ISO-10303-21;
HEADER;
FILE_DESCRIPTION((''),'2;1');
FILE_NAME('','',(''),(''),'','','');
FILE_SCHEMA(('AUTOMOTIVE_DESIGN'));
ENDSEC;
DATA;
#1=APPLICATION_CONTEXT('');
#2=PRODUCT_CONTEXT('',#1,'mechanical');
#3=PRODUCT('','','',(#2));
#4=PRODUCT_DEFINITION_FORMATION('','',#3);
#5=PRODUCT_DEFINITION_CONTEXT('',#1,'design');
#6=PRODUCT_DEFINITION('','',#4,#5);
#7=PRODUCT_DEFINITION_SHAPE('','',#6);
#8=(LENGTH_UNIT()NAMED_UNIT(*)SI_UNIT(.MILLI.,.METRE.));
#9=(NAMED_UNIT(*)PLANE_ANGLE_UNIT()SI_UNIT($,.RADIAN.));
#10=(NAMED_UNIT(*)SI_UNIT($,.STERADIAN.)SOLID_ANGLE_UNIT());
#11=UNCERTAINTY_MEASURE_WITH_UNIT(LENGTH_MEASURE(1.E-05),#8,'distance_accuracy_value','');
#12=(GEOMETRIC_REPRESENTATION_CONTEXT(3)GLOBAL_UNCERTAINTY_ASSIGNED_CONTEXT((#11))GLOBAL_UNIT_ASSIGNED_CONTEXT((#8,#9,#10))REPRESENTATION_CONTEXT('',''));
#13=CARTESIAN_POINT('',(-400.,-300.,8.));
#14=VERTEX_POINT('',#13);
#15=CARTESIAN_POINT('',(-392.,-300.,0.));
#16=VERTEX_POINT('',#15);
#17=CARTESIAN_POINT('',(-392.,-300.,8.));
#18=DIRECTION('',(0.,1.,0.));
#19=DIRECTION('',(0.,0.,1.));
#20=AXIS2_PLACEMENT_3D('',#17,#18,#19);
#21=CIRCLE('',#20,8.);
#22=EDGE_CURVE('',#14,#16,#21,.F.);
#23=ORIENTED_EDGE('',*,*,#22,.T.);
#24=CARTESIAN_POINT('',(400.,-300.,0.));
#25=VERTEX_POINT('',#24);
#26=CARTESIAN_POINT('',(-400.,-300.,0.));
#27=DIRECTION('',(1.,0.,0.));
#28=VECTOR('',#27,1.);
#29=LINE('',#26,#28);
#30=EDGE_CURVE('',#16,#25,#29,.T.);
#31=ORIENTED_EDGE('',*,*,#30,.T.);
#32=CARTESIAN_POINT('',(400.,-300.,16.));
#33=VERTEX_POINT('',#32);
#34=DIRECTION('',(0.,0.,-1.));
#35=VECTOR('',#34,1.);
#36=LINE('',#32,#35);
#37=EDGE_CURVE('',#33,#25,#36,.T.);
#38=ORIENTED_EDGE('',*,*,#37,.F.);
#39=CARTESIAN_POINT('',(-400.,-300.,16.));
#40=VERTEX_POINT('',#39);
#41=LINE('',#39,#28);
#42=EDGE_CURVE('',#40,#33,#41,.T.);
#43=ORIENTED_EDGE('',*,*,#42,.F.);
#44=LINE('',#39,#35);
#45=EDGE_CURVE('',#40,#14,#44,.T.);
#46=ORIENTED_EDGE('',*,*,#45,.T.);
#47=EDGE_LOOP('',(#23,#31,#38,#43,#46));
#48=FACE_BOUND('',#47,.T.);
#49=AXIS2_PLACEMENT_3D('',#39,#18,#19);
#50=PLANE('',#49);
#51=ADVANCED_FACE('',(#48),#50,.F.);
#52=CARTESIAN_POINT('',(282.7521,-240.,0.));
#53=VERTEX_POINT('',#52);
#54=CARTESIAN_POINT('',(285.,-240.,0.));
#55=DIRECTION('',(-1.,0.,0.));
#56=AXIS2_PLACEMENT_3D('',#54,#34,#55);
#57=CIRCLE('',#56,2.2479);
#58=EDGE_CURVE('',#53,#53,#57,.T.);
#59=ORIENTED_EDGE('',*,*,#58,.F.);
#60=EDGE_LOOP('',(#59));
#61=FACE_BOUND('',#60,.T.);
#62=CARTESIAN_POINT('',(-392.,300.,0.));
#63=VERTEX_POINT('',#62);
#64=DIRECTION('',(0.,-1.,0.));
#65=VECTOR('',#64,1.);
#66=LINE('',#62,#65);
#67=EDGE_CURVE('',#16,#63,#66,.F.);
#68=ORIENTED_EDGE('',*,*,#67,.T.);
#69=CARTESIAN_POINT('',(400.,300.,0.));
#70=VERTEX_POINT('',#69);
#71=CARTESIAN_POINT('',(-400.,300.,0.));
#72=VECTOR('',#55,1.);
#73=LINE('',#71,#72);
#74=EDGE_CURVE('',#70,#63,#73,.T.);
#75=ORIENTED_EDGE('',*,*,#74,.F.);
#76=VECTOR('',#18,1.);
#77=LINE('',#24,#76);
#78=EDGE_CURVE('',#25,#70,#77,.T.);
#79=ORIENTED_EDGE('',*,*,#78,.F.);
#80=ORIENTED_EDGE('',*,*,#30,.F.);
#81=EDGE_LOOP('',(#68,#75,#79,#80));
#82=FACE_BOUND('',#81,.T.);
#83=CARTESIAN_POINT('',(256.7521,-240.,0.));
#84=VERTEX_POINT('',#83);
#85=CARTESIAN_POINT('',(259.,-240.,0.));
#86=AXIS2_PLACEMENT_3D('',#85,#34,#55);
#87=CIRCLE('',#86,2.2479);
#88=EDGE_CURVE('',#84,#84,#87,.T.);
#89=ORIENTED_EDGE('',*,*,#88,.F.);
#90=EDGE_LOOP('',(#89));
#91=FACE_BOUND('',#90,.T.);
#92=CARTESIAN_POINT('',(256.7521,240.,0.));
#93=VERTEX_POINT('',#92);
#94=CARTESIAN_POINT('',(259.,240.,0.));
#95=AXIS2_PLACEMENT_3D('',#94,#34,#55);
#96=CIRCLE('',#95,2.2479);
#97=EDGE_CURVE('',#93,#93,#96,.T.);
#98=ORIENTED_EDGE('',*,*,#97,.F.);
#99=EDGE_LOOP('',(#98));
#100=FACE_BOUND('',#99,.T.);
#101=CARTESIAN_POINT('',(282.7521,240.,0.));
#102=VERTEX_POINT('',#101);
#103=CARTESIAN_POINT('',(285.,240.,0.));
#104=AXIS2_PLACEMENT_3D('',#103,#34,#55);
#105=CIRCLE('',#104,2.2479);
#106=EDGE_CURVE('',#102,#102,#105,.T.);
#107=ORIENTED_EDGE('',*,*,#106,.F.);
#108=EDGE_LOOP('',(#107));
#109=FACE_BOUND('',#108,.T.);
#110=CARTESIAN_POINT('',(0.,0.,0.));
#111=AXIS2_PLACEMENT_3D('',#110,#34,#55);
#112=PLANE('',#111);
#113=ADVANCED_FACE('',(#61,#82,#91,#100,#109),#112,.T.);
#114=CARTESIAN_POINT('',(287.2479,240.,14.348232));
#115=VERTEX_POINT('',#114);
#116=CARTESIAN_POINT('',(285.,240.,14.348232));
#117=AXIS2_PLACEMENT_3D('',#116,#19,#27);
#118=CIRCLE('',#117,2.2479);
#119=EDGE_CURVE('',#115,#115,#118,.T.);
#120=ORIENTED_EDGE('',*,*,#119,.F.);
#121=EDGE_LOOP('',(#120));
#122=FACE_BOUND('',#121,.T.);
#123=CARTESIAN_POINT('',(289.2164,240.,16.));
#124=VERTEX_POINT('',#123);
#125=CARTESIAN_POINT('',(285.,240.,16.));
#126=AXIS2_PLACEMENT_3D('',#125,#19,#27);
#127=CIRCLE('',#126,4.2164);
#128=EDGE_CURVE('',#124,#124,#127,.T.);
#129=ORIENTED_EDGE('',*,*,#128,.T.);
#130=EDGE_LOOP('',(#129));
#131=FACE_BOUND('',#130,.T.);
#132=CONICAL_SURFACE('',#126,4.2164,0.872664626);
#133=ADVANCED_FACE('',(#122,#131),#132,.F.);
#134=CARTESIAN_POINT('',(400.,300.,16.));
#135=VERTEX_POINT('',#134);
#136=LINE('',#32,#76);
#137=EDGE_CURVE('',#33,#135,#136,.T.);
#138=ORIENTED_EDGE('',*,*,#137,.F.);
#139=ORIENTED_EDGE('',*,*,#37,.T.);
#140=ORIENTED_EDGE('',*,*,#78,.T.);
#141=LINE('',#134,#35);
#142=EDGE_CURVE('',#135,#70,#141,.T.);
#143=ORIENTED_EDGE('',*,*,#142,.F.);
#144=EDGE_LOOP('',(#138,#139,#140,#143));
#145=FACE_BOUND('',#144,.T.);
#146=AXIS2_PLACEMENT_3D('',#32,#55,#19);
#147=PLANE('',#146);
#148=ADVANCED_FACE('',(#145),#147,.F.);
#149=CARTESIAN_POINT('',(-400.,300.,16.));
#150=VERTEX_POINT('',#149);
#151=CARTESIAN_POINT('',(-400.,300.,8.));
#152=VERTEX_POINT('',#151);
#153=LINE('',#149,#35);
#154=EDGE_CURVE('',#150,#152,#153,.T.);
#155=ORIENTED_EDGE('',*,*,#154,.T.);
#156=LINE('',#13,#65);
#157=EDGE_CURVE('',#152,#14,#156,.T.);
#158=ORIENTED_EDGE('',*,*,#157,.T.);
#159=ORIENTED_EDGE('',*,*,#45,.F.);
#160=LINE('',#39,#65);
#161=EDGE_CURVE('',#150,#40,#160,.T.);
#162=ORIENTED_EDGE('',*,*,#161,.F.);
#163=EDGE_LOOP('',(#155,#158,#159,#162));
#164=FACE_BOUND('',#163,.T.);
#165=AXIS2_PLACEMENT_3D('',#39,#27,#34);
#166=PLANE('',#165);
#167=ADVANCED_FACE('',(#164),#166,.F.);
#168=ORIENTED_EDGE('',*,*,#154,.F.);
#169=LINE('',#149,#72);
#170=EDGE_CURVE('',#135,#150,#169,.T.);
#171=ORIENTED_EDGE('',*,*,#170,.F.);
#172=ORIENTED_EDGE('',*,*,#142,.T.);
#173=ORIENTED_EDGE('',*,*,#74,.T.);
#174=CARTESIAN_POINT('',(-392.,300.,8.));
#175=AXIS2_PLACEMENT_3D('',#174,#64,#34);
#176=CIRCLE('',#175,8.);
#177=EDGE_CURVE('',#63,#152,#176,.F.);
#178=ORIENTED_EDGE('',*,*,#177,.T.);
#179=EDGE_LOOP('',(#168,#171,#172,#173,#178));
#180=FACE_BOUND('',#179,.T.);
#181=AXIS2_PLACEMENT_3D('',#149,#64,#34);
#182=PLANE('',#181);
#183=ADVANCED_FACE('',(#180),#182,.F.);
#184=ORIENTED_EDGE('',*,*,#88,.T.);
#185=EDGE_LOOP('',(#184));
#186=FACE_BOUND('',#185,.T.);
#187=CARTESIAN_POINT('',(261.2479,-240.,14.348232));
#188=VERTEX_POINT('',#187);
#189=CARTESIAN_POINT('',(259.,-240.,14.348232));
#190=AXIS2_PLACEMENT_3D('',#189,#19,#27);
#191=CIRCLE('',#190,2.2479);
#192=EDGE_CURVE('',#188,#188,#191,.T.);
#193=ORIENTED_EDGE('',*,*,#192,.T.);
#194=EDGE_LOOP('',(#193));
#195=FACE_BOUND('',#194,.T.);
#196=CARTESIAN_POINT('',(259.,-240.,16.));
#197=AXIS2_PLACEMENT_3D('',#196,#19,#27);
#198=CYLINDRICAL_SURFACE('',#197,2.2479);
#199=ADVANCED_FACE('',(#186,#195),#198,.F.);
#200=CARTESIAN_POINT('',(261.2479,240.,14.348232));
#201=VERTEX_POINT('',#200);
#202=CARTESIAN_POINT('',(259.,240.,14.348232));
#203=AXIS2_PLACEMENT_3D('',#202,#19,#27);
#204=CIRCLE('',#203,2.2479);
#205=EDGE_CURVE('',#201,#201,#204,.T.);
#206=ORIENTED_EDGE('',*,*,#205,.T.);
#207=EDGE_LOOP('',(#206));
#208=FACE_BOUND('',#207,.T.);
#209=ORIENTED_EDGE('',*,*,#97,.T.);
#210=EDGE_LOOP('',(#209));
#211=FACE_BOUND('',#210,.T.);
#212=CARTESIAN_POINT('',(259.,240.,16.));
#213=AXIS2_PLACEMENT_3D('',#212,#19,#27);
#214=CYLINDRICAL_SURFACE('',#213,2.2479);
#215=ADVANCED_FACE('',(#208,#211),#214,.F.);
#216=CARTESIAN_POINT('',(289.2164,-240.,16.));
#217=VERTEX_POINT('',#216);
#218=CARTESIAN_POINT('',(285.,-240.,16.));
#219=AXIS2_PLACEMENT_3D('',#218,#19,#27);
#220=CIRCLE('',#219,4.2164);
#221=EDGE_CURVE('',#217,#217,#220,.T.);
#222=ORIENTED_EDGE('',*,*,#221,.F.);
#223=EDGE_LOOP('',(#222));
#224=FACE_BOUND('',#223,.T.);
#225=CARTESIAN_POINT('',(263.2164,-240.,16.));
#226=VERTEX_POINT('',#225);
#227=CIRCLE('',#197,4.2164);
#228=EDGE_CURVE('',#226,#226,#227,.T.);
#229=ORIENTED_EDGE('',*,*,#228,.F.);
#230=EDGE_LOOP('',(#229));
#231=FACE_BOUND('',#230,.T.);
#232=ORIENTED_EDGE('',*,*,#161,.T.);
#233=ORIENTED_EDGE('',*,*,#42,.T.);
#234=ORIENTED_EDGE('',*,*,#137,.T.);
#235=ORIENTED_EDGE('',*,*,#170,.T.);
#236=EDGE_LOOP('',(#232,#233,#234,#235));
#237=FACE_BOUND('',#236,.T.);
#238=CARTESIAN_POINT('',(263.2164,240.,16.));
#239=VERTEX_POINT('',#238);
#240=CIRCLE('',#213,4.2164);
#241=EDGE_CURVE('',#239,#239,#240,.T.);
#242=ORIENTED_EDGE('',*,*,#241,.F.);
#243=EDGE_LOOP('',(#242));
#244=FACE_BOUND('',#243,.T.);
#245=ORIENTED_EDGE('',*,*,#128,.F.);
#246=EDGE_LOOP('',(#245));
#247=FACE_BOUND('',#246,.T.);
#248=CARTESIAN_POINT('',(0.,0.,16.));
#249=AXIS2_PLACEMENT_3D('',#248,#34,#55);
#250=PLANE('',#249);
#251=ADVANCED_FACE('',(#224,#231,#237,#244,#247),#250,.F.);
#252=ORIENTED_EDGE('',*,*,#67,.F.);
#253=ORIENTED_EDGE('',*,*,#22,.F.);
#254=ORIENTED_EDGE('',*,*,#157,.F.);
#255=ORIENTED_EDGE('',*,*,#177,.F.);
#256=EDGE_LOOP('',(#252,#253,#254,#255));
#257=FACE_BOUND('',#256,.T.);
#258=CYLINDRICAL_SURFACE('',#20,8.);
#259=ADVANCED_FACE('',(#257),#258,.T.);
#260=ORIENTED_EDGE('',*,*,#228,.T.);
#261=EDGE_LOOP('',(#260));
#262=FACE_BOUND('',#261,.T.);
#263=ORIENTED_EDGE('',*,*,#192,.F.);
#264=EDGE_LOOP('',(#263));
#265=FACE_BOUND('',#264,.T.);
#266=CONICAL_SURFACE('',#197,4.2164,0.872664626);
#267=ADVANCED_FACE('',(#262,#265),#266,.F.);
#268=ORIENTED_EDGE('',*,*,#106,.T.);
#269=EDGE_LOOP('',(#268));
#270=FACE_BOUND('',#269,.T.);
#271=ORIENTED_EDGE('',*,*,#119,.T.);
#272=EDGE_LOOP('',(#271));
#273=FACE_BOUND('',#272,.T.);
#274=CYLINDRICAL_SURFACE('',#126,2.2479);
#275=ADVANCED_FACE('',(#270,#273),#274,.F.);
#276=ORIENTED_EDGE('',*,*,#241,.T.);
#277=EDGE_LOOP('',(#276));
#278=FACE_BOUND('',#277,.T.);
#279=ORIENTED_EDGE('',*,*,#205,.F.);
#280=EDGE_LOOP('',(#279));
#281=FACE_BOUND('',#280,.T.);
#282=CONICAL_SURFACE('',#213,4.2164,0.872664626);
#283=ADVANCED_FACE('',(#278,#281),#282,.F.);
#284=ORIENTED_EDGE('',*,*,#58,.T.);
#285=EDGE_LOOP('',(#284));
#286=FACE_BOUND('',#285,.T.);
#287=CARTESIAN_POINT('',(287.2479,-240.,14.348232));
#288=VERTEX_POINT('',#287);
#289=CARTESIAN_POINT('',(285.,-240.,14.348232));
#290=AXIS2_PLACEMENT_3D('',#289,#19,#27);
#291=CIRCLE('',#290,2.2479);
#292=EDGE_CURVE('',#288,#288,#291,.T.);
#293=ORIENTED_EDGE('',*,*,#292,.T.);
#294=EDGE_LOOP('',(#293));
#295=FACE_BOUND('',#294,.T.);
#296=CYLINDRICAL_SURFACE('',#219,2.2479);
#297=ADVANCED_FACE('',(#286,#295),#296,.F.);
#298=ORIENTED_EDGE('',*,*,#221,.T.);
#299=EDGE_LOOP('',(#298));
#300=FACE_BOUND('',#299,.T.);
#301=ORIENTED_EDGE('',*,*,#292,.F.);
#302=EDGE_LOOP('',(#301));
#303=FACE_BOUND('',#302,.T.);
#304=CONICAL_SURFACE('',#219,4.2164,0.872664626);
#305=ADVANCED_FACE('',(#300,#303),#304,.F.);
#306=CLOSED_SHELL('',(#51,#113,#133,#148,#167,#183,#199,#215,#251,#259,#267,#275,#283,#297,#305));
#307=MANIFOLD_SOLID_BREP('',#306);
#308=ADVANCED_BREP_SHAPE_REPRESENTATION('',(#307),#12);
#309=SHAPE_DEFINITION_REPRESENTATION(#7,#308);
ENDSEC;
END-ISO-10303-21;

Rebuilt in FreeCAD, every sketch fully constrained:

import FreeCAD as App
import Part
import Sketcher
Q = App.Units.Quantity


def edges_at(feature, points):
    """Names of the edges that pass closest to the given points."""
    edges = feature.Shape.Edges
    near = lambda p: min(range(len(edges)), key=lambda i: edges[i].distToShape(Part.Vertex(*p))[0])
    return sorted({f"Edge{near(p) + 1}" for p in points})


def add_polygon(sketch, points):
    """Adds a closed chain of lines whose ends are joined by coincident constraints."""
    first, n = sketch.GeometryCount, len(points)
    for a, b in zip(points, points[1:] + points[:1]):
        sketch.addGeometry(Part.LineSegment(App.Vector(*a, 0), App.Vector(*b, 0)), False)
    for i in range(n):
        sketch.addConstraint(Sketcher.Constraint("Coincident", first + i, 2, first + (i + 1) % n, 1))

doc = App.newDocument("Part")
params = doc.addObject("Spreadsheet::Sheet", "Params")
for row, (alias, value) in enumerate([
    ("sketch1_width", "800 mm"),
    ("sketch1_height", "600 mm"),
    ("pad1_length", "16 mm"),
    ("groove_angle", "360 deg"),
    ("linearpattern_pitch", "26 mm"),
    ("groove2_angle", "360 deg"),
    ("fillet_radius", "8 mm"),
], start=1):
    params.set(f"A{row}", alias)
    params.set(f"B{row}", "=" + value)
    params.setAlias(f"B{row}", alias)

body = doc.addObject("PartDesign::Body", "Body")

sketch1 = body.newObject("Sketcher::SketchObject", "Sketch")
sketch1.AttachmentSupport = (doc.getObject("XY_Plane"), [""])
sketch1.MapMode = "FlatFace"
add_polygon(sketch1, [(-400, 300), (-400, -300), (400, -300), (400, 300)])
sketch1.addConstraint([
    Sketcher.Constraint("Vertical", 0),
    Sketcher.Constraint("Horizontal", 1),
    Sketcher.Constraint("Vertical", 2),
    Sketcher.Constraint("Horizontal", 3),
    Sketcher.Constraint("Symmetric", 0, 2, 2, 2, -1, 1),
    Sketcher.Constraint("DistanceX", 1, 1, 1, 2, Q("800 mm")),
    Sketcher.Constraint("DistanceY", 0, 2, 0, 1, Q("600 mm")),
])
sketch1.setExpression("Constraints[9]", "Params.sketch1_width")
sketch1.setExpression("Constraints[10]", "Params.sketch1_height")
pad1 = body.newObject("PartDesign::Pad", "Pad")
pad1.Profile = sketch1
pad1.setExpression("Length", "Params.pad1_length")

sketch2 = body.newObject("Sketcher::SketchObject", "Sketch001")
sketch2.AttachmentSupport = (doc.getObject("YZ_Plane"), [""])
sketch2.MapMode = "FlatFace"
sketch2.AttachmentOffset = App.Placement(App.Vector(0, 0, 285), App.Rotation())
add_polygon(sketch2, [(-240, -10.350675), (-240, 16), (-244.2164, 16), (-242.2479, 14.348232), (-242.2479, -9)])
sketch2.addGeometry(Part.LineSegment(App.Vector(-240, 16, 0), App.Vector(-240, -10.350675, 0)), True)
sketch2.addConstraint([
    Sketcher.Constraint("Vertical", 0),
    Sketcher.Constraint("Horizontal", 1),
    Sketcher.Constraint("Vertical", 3),
    Sketcher.Constraint("Vertical", 5),
    Sketcher.Constraint("Coincident", 5, 1, 0, 2),
    Sketcher.Constraint("Equal", 0, 5),
    Sketcher.Constraint("Angle", 2, Q("-40 deg")),
    Sketcher.Constraint("Angle", 4, Q("-31 deg")),
    Sketcher.Constraint("DistanceX", 0, 2, -1, 1, Q("240 mm")),
    Sketcher.Constraint("DistanceY", -1, 1, 0, 2, Q("16 mm")),
    Sketcher.Constraint("DistanceY", 3, 2, -1, 1, Q("9 mm")),
    Sketcher.Constraint("DistanceX", 1, 2, 1, 1, Q("4.2164 mm")),
    Sketcher.Constraint("DistanceX", 2, 2, -1, 1, Q("242.2479 mm")),
])
groove = body.newObject("PartDesign::Groove", "Groove")
groove.Profile = sketch2
groove.ReferenceAxis = (sketch2, ["Axis0"])
groove.setExpression("Angle", "Params.groove_angle")
doc.recompute()

linearpattern = body.newObject("PartDesign::LinearPattern", "LinearPattern")
linearpattern.Originals = [groove]
linearpattern.Direction = (doc.getObject("X_Axis"), [""])
linearpattern.Mode = "offset"
linearpattern.setExpression("Offset", "Params.linearpattern_pitch")
linearpattern.Occurrences = 2
linearpattern.Reversed = True
body.Tip = linearpattern
doc.recompute()

mirrored = body.newObject("PartDesign::Mirrored", "Mirrored")
mirrored.Originals = [groove]
mirrored.MirrorPlane = (doc.getObject("XZ_Plane"), [""])
body.Tip = mirrored

sketch3 = body.newObject("Sketcher::SketchObject", "Sketch002")
sketch3.AttachmentSupport = (doc.getObject("YZ_Plane"), [""])
sketch3.MapMode = "FlatFace"
sketch3.AttachmentOffset = App.Placement(App.Vector(0, 0, 259), App.Rotation())
add_polygon(sketch3, [(240, 16), (240, -10.350675), (242.2479, -9), (242.2479, 14.348232), (244.2164, 16)])
sketch3.addGeometry(Part.LineSegment(App.Vector(240, -10.350675, 0), App.Vector(240, 16, 0)), True)
sketch3.addConstraint([
    Sketcher.Constraint("Vertical", 0),
    Sketcher.Constraint("Vertical", 2),
    Sketcher.Constraint("Horizontal", 4),
    Sketcher.Constraint("Vertical", 5),
    Sketcher.Constraint("Coincident", 5, 1, 0, 2),
    Sketcher.Constraint("Horizontal", 3, 2, 5, 2),
    Sketcher.Constraint("Angle", 1, Q("31 deg")),
    Sketcher.Constraint("Angle", 3, Q("40 deg")),
    Sketcher.Constraint("DistanceX", -1, 1, 0, 2, Q("240 mm")),
    Sketcher.Constraint("DistanceY", 1, 2, -1, 1, Q("9 mm")),
    Sketcher.Constraint("DistanceY", -1, 1, 3, 2, Q("16 mm")),
    Sketcher.Constraint("DistanceX", 4, 2, 4, 1, Q("4.2164 mm")),
    Sketcher.Constraint("DistanceX", -1, 1, 1, 2, Q("242.2479 mm")),
])
groove2 = body.newObject("PartDesign::Groove", "Groove001")
groove2.Profile = sketch3
groove2.ReferenceAxis = (sketch3, ["Axis0"])
groove2.setExpression("Angle", "Params.groove2_angle")
doc.recompute()

fillet = body.newObject("PartDesign::Fillet", "Fillet")
fillet.Base = (groove2, edges_at(groove2, [(-400, 0, 0)]))
fillet.setExpression("Radius", "Params.fillet_radius")

doc.recompute()
